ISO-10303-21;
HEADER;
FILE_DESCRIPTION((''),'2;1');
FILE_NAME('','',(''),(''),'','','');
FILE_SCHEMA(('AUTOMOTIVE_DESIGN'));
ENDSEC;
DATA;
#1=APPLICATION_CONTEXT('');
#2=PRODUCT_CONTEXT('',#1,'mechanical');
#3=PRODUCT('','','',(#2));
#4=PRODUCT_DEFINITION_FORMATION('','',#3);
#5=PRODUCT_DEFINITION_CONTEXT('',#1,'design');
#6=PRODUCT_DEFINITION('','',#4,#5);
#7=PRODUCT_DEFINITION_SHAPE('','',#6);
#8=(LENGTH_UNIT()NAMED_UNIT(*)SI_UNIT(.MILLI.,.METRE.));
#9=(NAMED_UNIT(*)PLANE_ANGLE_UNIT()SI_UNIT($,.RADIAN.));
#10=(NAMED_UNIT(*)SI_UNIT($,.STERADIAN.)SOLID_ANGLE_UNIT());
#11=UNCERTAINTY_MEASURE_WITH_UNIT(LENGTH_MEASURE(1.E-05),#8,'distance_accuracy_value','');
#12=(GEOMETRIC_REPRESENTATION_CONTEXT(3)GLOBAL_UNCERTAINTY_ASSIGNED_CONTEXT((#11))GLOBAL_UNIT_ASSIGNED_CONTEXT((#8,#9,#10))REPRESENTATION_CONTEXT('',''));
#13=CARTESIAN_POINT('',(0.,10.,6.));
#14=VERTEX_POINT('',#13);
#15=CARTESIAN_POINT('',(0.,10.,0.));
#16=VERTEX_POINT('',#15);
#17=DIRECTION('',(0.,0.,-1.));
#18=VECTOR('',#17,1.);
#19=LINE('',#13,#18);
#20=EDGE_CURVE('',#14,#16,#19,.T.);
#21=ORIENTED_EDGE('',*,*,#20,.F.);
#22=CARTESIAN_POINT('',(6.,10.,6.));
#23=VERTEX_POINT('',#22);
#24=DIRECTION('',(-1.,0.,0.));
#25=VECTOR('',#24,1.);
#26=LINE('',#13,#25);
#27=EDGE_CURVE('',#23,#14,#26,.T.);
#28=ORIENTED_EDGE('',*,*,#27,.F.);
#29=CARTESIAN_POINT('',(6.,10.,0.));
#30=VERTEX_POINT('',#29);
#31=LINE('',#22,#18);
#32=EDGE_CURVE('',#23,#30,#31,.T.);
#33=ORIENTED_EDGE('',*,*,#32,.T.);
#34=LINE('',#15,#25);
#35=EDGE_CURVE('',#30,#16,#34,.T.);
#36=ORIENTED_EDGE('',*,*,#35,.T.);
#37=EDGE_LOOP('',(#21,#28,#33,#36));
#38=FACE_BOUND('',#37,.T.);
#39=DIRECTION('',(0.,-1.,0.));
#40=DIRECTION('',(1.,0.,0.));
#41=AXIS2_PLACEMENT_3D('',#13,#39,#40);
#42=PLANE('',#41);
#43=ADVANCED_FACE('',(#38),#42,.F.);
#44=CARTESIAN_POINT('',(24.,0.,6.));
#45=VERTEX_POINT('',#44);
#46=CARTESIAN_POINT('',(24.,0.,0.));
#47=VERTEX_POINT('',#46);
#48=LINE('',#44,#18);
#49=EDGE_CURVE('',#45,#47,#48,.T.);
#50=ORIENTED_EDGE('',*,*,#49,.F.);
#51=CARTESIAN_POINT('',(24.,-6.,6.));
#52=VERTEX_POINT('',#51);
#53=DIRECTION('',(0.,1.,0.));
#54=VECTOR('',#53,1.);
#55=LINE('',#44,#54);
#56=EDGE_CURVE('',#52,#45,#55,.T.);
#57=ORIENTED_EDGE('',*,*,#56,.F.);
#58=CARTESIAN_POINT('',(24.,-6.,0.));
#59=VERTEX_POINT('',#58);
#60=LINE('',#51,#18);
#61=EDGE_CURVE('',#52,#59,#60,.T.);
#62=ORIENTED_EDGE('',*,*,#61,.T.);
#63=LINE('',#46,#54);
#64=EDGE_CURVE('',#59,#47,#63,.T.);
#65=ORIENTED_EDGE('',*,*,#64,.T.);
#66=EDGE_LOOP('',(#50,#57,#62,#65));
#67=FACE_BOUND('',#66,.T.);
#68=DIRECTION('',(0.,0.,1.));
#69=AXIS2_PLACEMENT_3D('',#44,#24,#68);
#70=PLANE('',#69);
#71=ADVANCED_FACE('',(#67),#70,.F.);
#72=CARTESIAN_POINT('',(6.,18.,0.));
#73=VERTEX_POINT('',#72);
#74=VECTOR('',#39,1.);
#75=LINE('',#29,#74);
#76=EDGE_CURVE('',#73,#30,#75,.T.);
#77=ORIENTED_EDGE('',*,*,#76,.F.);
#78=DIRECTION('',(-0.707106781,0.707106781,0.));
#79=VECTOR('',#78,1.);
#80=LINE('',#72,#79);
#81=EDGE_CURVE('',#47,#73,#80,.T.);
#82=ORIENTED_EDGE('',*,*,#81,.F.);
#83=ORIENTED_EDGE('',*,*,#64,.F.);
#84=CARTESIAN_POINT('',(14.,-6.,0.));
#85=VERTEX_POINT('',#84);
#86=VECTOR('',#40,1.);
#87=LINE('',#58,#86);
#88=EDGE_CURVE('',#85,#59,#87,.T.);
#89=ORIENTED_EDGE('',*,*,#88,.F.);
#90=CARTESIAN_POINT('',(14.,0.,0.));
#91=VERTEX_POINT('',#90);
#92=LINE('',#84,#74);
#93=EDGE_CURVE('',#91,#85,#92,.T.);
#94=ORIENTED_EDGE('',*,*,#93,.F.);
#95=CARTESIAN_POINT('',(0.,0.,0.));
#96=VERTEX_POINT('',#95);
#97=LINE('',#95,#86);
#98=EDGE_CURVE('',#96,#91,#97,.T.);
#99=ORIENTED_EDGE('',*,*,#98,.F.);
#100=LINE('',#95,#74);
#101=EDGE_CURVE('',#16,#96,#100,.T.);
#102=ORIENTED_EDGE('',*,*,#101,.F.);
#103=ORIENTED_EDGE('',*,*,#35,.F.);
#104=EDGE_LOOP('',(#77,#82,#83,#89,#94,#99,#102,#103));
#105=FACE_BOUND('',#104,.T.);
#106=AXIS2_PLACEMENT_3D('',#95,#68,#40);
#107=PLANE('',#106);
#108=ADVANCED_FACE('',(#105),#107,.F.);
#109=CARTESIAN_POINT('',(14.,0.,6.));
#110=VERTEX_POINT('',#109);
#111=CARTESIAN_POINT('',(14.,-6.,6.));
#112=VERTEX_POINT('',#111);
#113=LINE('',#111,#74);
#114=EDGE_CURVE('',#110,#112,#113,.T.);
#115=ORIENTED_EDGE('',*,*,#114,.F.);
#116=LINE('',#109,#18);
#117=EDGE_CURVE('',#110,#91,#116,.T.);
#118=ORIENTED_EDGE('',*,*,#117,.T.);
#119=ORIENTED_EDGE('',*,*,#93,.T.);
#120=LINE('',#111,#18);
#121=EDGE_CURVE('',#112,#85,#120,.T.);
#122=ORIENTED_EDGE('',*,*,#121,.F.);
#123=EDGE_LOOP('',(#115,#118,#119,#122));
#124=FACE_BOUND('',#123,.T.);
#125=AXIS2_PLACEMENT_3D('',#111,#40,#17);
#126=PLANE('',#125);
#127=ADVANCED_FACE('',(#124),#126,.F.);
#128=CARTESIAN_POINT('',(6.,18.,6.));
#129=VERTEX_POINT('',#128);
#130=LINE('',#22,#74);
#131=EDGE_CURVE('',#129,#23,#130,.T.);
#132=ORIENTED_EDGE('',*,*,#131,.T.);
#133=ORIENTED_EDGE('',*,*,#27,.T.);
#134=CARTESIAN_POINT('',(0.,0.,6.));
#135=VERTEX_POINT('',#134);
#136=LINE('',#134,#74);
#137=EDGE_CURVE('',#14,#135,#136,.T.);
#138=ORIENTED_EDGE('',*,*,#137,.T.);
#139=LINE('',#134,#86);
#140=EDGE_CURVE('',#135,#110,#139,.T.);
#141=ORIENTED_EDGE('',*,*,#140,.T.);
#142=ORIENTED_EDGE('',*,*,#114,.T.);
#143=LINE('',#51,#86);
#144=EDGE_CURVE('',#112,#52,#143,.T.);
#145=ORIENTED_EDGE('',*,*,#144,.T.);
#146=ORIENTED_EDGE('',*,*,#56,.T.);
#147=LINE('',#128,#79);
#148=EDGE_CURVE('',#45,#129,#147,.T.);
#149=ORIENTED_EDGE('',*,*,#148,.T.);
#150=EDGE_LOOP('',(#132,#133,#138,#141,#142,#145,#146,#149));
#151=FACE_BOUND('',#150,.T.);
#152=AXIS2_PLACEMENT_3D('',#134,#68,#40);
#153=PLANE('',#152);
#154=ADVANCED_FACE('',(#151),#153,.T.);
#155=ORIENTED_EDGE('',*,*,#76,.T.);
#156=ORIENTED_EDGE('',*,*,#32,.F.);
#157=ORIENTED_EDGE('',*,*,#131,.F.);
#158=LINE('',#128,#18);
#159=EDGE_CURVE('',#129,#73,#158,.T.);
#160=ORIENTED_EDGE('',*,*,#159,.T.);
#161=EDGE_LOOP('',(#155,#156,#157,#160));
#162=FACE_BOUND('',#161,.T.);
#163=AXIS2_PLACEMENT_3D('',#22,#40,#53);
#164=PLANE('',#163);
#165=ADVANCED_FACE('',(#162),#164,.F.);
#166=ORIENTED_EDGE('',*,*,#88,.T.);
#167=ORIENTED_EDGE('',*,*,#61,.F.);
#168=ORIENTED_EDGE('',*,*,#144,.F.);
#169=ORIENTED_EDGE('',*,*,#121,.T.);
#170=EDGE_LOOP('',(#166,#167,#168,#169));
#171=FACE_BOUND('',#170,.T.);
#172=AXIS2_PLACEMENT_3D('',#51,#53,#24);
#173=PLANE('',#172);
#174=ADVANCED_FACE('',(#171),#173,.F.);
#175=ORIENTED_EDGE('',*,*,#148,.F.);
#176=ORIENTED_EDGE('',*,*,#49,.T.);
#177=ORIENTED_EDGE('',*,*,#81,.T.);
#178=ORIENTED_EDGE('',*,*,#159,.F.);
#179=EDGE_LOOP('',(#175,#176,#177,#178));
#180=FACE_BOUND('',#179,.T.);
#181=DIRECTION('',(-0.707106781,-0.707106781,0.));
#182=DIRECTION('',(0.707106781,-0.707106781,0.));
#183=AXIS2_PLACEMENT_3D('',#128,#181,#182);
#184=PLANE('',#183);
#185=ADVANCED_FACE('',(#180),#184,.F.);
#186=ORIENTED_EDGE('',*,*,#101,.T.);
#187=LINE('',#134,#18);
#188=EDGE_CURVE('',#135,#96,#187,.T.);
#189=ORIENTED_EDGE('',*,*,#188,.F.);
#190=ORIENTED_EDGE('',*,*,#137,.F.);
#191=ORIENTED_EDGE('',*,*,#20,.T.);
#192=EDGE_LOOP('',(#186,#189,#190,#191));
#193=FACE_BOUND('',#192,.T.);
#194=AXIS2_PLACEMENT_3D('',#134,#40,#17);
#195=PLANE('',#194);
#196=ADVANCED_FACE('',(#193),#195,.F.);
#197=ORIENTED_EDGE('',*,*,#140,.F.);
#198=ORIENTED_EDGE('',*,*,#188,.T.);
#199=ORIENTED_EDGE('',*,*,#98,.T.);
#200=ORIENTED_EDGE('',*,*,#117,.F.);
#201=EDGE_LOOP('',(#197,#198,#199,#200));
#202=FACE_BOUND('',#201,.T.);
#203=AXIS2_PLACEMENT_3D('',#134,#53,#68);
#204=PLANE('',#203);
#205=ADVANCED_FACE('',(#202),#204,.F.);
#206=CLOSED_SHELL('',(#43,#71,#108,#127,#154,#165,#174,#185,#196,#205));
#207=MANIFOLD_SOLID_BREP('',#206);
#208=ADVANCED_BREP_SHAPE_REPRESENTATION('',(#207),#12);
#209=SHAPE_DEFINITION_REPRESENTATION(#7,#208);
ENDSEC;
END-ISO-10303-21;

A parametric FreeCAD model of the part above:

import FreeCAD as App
import Part
import Sketcher
from FreeCAD import Vector

doc = App.newDocument("Part")
body = doc.addObject("PartDesign::Body", "Body")

# Sketch on XY plane
sketch1 = body.newObject("Sketcher::SketchObject", "Sketch")
sketch1.AttachmentSupport = (doc.getObject("XY_Plane"), [""])
sketch1.MapMode = "FlatFace"
sketch1.addGeometry([
    Part.LineSegment(Vector(0, 10, 0), Vector(0, 0, 0)),  # 0
    Part.LineSegment(Vector(0, 0, 0), Vector(14, 0, 0)),  # 1
    Part.LineSegment(Vector(14, 0, 0), Vector(14, -6, 0)),  # 2
    Part.LineSegment(Vector(14, -6, 0), Vector(24, -6, 0)),  # 3
    Part.LineSegment(Vector(24, -6, 0), Vector(24, 0, 0)),  # 4
    Part.LineSegment(Vector(24, 0, 0), Vector(6, 18, 0)),  # 5
    Part.LineSegment(Vector(6, 18, 0), Vector(6, 10, 0)),  # 6
    Part.LineSegment(Vector(6, 10, 0), Vector(0, 10, 0)),  # 7
], False)
sketch1.addConstraint([
    Sketcher.Constraint("Coincident", 0, 2, 1, 1),
    Sketcher.Constraint("Coincident", 1, 2, 2, 1),
    Sketcher.Constraint("Coincident", 2, 2, 3, 1),
    Sketcher.Constraint("Coincident", 3, 2, 4, 1),
    Sketcher.Constraint("Coincident", 4, 2, 5, 1),
    Sketcher.Constraint("Coincident", 5, 2, 6, 1),
    Sketcher.Constraint("Coincident", 6, 2, 7, 1),
    Sketcher.Constraint("Coincident", 7, 2, 0, 1),
    Sketcher.Constraint("Vertical", 0),
    Sketcher.Constraint("Horizontal", 1),
    Sketcher.Constraint("Vertical", 2),
    Sketcher.Constraint("Horizontal", 3),
    Sketcher.Constraint("Vertical", 4),
    Sketcher.Constraint("Vertical", 6),
    Sketcher.Constraint("Horizontal", 7),
    Sketcher.Constraint("Coincident", 0, 2, -1, 1),
    Sketcher.Constraint("PointOnObject", 4, 2, -1),
    Sketcher.Constraint("Equal", 3, 0),
    Sketcher.Constraint("Equal", 7, 2),
    Sketcher.Constraint("DistanceX", 1, 1, 1, 2, 14.0),
    Sketcher.Constraint("DistanceX", 3, 1, 3, 2, 10.0),
    Sketcher.Constraint("DistanceX", 7, 2, 7, 1, 6.0),
    Sketcher.Constraint("DistanceY", 6, 2, 6, 1, 8.0),
])
pad1 = body.newObject("PartDesign::Pad", "Pad")
pad1.Profile = sketch1
pad1.Length = 6

doc.recompute()
